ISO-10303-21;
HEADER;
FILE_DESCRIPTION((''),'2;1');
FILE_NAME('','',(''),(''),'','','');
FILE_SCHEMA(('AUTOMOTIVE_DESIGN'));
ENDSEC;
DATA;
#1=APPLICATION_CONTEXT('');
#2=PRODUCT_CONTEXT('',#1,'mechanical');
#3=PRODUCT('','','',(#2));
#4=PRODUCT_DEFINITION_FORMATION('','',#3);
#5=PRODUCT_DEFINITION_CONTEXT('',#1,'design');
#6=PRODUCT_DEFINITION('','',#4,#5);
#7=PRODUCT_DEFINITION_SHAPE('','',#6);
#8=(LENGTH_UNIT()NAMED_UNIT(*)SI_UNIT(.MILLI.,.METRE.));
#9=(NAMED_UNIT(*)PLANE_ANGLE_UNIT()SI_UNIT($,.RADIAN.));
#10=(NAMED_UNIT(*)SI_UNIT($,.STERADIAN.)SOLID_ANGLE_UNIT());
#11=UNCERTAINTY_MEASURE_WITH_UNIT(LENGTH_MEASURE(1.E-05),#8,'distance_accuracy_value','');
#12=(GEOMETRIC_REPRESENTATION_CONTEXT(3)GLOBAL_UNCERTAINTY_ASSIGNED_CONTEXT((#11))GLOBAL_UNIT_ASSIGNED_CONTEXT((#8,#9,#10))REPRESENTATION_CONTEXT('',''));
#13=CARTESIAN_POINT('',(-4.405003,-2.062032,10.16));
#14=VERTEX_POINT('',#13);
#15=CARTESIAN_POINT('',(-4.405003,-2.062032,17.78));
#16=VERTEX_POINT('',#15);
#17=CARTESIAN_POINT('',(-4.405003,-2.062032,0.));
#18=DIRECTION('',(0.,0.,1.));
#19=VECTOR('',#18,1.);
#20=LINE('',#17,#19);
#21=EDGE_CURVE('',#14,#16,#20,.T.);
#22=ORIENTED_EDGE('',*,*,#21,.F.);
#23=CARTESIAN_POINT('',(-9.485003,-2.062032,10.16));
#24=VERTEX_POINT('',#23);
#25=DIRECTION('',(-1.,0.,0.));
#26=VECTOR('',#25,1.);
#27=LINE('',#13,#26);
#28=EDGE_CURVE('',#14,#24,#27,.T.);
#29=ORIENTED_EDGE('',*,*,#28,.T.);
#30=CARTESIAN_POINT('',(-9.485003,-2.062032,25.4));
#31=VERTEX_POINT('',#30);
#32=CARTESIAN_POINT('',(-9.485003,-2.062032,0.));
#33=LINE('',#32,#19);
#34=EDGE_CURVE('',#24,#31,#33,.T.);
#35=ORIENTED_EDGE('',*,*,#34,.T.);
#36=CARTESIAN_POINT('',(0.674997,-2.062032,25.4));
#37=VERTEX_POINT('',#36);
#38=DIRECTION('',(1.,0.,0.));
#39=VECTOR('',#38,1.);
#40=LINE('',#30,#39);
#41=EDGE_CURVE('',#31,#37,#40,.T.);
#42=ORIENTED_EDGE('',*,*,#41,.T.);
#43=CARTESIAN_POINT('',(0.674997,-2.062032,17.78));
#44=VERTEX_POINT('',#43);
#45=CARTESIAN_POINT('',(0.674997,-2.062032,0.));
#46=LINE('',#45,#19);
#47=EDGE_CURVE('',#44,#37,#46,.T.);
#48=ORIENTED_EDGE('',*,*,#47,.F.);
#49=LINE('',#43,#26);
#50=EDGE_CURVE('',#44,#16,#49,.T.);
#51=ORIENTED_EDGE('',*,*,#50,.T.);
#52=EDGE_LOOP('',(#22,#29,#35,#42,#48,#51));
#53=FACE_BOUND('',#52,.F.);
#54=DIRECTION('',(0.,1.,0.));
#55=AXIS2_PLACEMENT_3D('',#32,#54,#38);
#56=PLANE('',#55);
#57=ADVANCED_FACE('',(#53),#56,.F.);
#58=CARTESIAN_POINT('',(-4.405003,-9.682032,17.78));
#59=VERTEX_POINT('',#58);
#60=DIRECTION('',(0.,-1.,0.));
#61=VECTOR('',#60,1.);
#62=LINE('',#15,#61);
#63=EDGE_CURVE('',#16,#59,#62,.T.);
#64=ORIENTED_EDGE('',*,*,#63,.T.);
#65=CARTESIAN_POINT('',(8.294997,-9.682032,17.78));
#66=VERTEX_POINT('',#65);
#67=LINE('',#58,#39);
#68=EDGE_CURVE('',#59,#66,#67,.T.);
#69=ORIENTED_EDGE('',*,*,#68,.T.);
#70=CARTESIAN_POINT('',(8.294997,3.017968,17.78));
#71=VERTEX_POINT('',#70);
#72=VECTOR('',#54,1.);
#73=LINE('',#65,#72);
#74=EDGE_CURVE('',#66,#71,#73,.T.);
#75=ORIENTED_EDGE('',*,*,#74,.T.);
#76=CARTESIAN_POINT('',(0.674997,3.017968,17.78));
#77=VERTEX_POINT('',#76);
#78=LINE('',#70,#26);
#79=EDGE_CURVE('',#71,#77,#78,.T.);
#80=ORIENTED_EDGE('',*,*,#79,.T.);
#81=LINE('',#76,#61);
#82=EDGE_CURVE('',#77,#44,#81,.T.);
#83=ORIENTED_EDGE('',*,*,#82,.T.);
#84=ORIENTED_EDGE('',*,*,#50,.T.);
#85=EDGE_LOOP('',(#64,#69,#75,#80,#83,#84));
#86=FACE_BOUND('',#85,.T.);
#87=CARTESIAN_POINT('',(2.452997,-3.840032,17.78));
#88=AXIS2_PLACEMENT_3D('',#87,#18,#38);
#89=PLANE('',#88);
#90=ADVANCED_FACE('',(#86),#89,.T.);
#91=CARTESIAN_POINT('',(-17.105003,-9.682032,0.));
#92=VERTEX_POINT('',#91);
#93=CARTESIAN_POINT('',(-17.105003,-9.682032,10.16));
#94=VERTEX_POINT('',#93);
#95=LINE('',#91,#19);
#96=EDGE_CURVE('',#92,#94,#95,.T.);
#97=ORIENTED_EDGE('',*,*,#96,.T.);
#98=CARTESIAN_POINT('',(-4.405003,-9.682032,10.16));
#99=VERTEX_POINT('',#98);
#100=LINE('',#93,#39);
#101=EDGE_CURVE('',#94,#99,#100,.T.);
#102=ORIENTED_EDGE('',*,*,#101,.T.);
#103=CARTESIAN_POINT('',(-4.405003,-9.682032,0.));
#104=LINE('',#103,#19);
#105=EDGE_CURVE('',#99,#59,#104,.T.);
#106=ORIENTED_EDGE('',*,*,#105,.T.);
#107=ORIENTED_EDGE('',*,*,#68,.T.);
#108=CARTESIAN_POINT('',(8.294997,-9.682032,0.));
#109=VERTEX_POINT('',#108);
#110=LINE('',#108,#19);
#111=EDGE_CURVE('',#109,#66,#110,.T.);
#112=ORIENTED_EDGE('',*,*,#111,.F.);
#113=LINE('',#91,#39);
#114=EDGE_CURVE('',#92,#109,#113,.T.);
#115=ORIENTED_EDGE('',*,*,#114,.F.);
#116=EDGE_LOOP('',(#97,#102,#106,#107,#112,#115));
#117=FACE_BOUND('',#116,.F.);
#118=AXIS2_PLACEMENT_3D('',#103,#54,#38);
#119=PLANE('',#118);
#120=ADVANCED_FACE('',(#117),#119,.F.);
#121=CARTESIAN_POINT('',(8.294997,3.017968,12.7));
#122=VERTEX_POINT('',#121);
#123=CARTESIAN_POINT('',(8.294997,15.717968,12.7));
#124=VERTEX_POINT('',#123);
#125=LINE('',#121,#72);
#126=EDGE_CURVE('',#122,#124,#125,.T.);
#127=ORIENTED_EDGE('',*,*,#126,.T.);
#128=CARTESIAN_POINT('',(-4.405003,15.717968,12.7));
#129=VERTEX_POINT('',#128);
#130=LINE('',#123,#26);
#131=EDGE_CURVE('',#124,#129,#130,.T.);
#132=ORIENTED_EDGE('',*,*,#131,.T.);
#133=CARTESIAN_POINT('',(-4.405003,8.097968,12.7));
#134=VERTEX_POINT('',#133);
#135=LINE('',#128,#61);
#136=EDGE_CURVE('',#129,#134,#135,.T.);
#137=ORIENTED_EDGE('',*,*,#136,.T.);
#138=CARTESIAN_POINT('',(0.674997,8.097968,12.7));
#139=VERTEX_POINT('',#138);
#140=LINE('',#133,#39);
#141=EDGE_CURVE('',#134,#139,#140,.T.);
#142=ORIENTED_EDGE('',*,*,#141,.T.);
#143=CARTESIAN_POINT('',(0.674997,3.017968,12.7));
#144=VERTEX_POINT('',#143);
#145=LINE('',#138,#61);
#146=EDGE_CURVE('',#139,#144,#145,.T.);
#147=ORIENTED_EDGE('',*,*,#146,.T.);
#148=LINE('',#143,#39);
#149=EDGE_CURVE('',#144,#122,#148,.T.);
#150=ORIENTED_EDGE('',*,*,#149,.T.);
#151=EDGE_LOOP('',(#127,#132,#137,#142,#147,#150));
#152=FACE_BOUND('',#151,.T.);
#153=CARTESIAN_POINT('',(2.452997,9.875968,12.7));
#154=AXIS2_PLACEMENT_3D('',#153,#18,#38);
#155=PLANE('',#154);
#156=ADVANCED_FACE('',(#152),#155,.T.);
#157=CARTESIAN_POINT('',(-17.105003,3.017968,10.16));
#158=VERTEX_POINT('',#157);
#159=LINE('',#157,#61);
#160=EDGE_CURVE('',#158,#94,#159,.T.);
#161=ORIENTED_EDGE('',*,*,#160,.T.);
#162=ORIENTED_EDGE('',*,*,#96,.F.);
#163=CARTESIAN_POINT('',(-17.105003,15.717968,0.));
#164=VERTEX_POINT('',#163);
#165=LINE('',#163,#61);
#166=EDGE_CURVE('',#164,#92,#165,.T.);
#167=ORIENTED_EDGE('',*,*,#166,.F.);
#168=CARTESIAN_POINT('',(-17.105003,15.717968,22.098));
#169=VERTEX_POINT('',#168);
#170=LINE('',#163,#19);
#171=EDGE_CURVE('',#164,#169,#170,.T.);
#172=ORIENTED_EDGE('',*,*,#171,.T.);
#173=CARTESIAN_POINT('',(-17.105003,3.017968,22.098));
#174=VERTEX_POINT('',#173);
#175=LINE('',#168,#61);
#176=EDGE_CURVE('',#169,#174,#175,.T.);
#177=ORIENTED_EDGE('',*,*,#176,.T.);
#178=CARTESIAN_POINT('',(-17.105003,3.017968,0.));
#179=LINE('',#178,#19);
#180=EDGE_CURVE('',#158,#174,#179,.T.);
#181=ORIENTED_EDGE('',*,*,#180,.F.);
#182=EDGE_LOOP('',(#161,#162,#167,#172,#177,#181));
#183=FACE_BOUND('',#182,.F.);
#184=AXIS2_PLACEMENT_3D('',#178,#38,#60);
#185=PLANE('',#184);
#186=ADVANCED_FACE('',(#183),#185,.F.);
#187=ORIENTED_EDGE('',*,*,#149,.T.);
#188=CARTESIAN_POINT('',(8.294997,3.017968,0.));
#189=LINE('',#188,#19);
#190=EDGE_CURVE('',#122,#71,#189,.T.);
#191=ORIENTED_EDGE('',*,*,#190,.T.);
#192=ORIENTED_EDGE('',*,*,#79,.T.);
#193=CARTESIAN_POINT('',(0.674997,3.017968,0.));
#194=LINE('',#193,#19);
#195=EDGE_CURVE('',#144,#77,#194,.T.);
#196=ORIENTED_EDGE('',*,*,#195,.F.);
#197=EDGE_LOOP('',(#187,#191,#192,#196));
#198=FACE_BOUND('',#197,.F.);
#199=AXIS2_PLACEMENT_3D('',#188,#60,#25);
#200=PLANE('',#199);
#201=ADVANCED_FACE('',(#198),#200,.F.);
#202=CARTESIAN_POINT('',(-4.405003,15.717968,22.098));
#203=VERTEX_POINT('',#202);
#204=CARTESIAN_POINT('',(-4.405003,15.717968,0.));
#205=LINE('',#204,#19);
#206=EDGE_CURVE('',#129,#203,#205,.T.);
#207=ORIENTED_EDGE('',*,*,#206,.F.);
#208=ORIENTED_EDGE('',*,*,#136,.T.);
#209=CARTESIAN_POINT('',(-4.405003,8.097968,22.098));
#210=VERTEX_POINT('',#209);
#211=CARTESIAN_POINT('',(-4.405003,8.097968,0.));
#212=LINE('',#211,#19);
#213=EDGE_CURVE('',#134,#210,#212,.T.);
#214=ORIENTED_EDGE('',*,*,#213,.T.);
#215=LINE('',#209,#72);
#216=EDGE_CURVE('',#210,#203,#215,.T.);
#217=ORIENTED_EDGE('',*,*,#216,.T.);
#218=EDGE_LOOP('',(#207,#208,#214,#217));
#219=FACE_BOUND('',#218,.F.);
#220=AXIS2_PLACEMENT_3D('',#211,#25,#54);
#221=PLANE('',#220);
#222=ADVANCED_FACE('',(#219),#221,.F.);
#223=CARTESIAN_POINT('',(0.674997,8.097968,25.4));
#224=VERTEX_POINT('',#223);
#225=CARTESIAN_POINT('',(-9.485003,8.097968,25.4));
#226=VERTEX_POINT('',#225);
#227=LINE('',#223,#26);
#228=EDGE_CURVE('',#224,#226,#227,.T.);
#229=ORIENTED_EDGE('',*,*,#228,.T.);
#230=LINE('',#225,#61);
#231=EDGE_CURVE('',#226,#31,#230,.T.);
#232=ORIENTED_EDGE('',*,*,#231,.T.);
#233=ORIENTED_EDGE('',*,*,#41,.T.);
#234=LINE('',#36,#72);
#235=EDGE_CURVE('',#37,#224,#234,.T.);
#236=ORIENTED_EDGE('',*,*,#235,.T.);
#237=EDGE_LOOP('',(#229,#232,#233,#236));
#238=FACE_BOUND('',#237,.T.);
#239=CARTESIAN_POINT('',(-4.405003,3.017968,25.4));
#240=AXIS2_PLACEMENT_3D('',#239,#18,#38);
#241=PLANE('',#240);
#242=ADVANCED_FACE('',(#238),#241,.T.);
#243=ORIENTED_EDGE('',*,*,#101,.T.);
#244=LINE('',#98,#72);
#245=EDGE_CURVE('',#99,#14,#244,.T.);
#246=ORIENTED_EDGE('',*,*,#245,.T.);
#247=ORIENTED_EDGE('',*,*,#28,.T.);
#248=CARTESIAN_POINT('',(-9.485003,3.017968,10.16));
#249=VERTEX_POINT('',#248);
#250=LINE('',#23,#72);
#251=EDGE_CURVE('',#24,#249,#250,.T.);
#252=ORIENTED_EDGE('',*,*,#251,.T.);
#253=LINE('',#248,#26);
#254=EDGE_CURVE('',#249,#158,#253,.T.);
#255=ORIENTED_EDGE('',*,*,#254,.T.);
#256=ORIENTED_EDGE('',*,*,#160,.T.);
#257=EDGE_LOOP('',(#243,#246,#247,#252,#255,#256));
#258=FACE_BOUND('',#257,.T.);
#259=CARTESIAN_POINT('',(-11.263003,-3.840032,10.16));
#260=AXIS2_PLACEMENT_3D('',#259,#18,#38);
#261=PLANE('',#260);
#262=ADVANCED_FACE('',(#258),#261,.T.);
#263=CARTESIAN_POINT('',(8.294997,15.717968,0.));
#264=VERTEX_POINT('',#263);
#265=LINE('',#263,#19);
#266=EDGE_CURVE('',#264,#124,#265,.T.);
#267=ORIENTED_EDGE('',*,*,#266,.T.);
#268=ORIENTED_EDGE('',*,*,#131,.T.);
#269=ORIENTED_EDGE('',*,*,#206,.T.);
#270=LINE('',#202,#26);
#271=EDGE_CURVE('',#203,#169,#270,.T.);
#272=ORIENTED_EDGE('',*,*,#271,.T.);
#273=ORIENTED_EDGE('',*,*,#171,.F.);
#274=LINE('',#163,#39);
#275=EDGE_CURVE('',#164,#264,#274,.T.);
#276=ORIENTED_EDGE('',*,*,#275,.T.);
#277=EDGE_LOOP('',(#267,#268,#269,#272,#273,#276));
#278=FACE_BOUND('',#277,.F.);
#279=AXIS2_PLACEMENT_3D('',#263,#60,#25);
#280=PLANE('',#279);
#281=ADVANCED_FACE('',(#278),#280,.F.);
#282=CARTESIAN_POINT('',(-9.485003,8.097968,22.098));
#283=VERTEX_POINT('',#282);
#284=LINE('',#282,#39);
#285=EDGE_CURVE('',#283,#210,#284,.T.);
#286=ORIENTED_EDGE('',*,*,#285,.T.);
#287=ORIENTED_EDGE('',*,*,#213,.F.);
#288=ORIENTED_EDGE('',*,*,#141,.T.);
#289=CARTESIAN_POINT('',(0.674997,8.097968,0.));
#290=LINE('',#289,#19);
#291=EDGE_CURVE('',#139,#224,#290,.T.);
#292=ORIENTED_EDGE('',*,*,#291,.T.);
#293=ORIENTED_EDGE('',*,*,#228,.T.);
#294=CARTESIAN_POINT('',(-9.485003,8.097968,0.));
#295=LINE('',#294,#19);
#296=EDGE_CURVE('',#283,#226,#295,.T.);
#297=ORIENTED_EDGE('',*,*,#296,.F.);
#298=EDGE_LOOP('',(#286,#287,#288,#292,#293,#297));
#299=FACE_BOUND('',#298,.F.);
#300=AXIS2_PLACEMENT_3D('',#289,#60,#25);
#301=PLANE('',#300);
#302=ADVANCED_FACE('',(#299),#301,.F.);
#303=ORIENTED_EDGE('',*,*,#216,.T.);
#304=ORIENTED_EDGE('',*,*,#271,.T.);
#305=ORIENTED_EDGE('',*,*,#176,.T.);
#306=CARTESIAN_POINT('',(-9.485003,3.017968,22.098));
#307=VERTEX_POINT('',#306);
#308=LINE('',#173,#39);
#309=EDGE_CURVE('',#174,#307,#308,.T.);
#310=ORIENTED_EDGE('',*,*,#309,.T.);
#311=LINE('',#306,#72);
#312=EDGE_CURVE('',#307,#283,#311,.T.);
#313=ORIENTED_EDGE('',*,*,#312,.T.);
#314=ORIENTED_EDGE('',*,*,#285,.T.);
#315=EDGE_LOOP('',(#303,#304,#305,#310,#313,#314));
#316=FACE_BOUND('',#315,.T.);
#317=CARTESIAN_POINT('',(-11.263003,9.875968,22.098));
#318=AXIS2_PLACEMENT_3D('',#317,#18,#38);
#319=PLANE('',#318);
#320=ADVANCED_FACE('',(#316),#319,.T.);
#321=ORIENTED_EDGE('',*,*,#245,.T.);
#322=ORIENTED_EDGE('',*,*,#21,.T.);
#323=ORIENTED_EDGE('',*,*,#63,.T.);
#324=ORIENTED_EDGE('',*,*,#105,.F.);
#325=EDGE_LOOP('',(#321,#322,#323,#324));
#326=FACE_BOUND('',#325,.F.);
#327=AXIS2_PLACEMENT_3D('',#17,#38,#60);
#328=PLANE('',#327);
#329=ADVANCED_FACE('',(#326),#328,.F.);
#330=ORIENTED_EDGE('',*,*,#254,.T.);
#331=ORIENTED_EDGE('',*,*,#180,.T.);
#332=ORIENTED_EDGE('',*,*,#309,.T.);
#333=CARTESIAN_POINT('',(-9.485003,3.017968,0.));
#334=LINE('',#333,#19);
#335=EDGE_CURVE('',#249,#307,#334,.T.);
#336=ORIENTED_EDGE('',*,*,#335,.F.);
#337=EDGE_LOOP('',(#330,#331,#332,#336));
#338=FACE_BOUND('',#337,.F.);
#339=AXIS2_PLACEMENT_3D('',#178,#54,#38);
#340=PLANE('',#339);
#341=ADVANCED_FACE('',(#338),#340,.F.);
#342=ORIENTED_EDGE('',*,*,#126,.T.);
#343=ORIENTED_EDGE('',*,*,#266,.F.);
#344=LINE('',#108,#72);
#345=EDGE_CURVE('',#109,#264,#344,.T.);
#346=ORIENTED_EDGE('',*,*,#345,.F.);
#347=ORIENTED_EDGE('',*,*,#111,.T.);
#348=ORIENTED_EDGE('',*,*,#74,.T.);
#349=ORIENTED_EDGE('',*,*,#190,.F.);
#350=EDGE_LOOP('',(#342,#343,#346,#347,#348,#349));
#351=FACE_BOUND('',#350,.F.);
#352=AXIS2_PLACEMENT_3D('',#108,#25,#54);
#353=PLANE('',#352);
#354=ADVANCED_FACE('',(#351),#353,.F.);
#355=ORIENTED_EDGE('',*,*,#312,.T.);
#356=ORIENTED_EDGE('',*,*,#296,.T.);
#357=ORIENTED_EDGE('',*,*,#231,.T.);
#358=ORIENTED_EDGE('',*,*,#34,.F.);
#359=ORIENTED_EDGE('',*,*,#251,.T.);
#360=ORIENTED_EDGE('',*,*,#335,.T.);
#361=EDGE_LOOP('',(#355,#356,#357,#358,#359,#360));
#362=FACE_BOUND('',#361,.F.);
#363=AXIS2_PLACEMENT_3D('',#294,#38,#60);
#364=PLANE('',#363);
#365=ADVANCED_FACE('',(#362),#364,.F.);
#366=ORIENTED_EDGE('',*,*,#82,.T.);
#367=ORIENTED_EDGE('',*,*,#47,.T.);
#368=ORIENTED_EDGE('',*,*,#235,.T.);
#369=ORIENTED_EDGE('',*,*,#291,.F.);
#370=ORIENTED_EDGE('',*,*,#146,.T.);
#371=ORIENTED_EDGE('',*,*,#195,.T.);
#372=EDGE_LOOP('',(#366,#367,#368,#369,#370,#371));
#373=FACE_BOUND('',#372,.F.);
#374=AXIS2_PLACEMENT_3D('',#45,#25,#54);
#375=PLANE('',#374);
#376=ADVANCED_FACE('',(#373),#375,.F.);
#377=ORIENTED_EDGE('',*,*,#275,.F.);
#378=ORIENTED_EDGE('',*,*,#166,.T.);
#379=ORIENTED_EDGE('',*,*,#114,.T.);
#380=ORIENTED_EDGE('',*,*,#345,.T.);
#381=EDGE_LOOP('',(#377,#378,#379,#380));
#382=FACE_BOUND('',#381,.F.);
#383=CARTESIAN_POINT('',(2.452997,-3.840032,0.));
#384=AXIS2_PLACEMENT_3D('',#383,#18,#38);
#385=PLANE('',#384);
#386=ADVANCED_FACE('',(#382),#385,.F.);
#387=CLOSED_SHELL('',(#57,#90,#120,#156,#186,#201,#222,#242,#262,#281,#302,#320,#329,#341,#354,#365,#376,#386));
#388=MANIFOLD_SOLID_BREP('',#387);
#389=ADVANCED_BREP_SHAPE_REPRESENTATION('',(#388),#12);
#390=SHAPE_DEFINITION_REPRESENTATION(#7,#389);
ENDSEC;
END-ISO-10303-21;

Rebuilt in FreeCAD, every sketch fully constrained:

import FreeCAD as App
import Part
import Sketcher

V = App.Vector
Q = App.Units.Quantity

doc = App.newDocument("Part")
body = doc.addObject("PartDesign::Body", "Body")

# Sketch on XY plane
sketch1 = doc.addObject("Sketcher::SketchObject", "Sketch")
body.addObject(sketch1)
sketch1.AttachmentSupport = (doc.XY_Plane, [""])
sketch1.MapMode = "FlatFace"
sketch1.addGeometry([
    Part.LineSegment(V(-4, 8, 0), V(-4, 16, 0)),  # 0
    Part.LineSegment(V(-4, 16, 0), V(-17, 16, 0)),  # 1
    Part.LineSegment(V(-17, 16, 0), V(-17, 3, 0)),  # 2
    Part.LineSegment(V(-17, 3, 0), V(-9, 3, 0)),  # 3
    Part.LineSegment(V(-9, 3, 0), V(-9, 8, 0)),  # 4
    Part.LineSegment(V(-9, 8, 0), V(-4, 8, 0)),  # 5
], False)
sketch1.addConstraint([
    Sketcher.Constraint("Coincident", 0, 2, 1, 1),
    Sketcher.Constraint("Coincident", 1, 2, 2, 1),
    Sketcher.Constraint("Coincident", 2, 2, 3, 1),
    Sketcher.Constraint("Coincident", 3, 2, 4, 1),
    Sketcher.Constraint("Coincident", 4, 2, 5, 1),
    Sketcher.Constraint("Coincident", 5, 2, 0, 1),
    Sketcher.Constraint("Vertical", 0),
    Sketcher.Constraint("Horizontal", 1),
    Sketcher.Constraint("Vertical", 2),
    Sketcher.Constraint("Horizontal", 3),
    Sketcher.Constraint("Vertical", 4),
    Sketcher.Constraint("Horizontal", 5),
    Sketcher.Constraint("Equal", 3, 0),
    Sketcher.Constraint("Equal", 1, 2),
    Sketcher.Constraint("DistanceX", 1, 2, 1, 1, Q("0.5 in")),
    Sketcher.Constraint("DistanceX", 3, 1, 3, 2, Q("0.3 in")),
    Sketcher.Constraint("DistanceY", -1, 1, 0, 2, 15.717968),
    Sketcher.Constraint("DistanceX", 0, 2, -1, 1, 4.405003),
])
pad1 = doc.addObject("PartDesign::Pad", "Pad")
body.addObject(pad1)
pad1.Profile = sketch1
pad1.Length = Q("0.87 in")

# Sketch on XY plane
sketch2 = doc.addObject("Sketcher::SketchObject", "Sketch001")
body.addObject(sketch2)
sketch2.AttachmentSupport = (doc.XY_Plane, [""])
sketch2.MapMode = "FlatFace"
sketch2.addGeometry([
    Part.LineSegment(V(1, 3, 0), V(8, 3, 0)),  # 0
    Part.LineSegment(V(8, 3, 0), V(8, 16, 0)),  # 1
    Part.LineSegment(V(8, 16, 0), V(-4, 16, 0)),  # 2
    Part.LineSegment(V(-4, 16, 0), V(-4, 8, 0)),  # 3
    Part.LineSegment(V(-4, 8, 0), V(1, 8, 0)),  # 4
    Part.LineSegment(V(1, 8, 0), V(1, 3, 0)),  # 5
], False)
sketch2.addConstraint([
    Sketcher.Constraint("Coincident", 0, 2, 1, 1),
    Sketcher.Constraint("Coincident", 1, 2, 2, 1),
    Sketcher.Constraint("Coincident", 2, 2, 3, 1),
    Sketcher.Constraint("Coincident", 3, 2, 4, 1),
    Sketcher.Constraint("Coincident", 4, 2, 5, 1),
    Sketcher.Constraint("Coincident", 5, 2, 0, 1),
    Sketcher.Constraint("Horizontal", 0),
    Sketcher.Constraint("Vertical", 1),
    Sketcher.Constraint("Horizontal", 2),
    Sketcher.Constraint("Vertical", 3),
    Sketcher.Constraint("Horizontal", 4),
    Sketcher.Constraint("Vertical", 5),
    Sketcher.Constraint("Equal", 2, 1),
    Sketcher.Constraint("Equal", 0, 3),
    Sketcher.Constraint("DistanceX", 0, 1, 0, 2, Q("0.3 in")),
    Sketcher.Constraint("DistanceX", 2, 2, 2, 1, Q("0.5 in")),
    Sketcher.Constraint("DistanceY", -1, 1, 0, 2, 3.017968),
    Sketcher.Constraint("DistanceX", -1, 1, 0, 2, 8.294997),
])
pad2 = doc.addObject("PartDesign::Pad", "Pad001")
body.addObject(pad2)
pad2.Profile = sketch2
pad2.Length = Q("0.5 in")

# Sketch on XY plane
sketch3 = doc.addObject("Sketcher::SketchObject", "Sketch002")
body.addObject(sketch3)
sketch3.AttachmentSupport = (doc.XY_Plane, [""])
sketch3.MapMode = "FlatFace"
sketch3.addGeometry([
    Part.LineSegment(V(-17, -10, 0), V(-4, -10, 0)),  # 0
    Part.LineSegment(V(-4, -10, 0), V(-4, -2, 0)),  # 1
    Part.LineSegment(V(-4, -2, 0), V(-9, -2, 0)),  # 2
    Part.LineSegment(V(-9, -2, 0), V(-9, 3, 0)),  # 3
    Part.LineSegment(V(-9, 3, 0), V(-17, 3, 0)),  # 4
    Part.LineSegment(V(-17, 3, 0), V(-17, -10, 0)),  # 5
], False)
sketch3.addConstraint([
    Sketcher.Constraint("Coincident", 0, 2, 1, 1),
    Sketcher.Constraint("Coincident", 1, 2, 2, 1),
    Sketcher.Constraint("Coincident", 2, 2, 3, 1),
    Sketcher.Constraint("Coincident", 3, 2, 4, 1),
    Sketcher.Constraint("Coincident", 4, 2, 5, 1),
    Sketcher.Constraint("Coincident", 5, 2, 0, 1),
    Sketcher.Constraint("Horizontal", 0),
    Sketcher.Constraint("Vertical", 1),
    Sketcher.Constraint("Horizontal", 2),
    Sketcher.Constraint("Vertical", 3),
    Sketcher.Constraint("Horizontal", 4),
    Sketcher.Constraint("Vertical", 5),
    Sketcher.Constraint("Equal", 4, 1),
    Sketcher.Constraint("Equal", 2, 3),
    Sketcher.Constraint("DistanceX", 0, 1, 0, 2, Q("0.5 in")),
    Sketcher.Constraint("DistanceX", 2, 2, 2, 1, Q("0.2 in")),
    Sketcher.Constraint("DistanceY", 1, 2, -1, 1, 2.062032),
    Sketcher.Constraint("DistanceX", 0, 2, -1, 1, 4.405003),
])
pad3 = doc.addObject("PartDesign::Pad", "Pad002")
body.addObject(pad3)
pad3.Profile = sketch3
pad3.Length = Q("0.4 in")

# Sketch on XY plane
sketch4 = doc.addObject("Sketcher::SketchObject", "Sketch003")
body.addObject(sketch4)
sketch4.AttachmentSupport = (doc.XY_Plane, [""])
sketch4.MapMode = "FlatFace"
sketch4.addGeometry([
    Part.LineSegment(V(-4, -10, 0), V(8, -10, 0)),  # 0
    Part.LineSegment(V(8, -10, 0), V(8, 3, 0)),  # 1
    Part.LineSegment(V(8, 3, 0), V(1, 3, 0)),  # 2
    Part.LineSegment(V(1, 3, 0), V(1, -2, 0)),  # 3
    Part.LineSegment(V(1, -2, 0), V(-4, -2, 0)),  # 4
    Part.LineSegment(V(-4, -2, 0), V(-4, -10, 0)),  # 5
], False)
sketch4.addConstraint([
    Sketcher.Constraint("Coincident", 0, 2, 1, 1),
    Sketcher.Constraint("Coincident", 1, 2, 2, 1),
    Sketcher.Constraint("Coincident", 2, 2, 3, 1),
    Sketcher.Constraint("Coincident", 3, 2, 4, 1),
    Sketcher.Constraint("Coincident", 4, 2, 5, 1),
    Sketcher.Constraint("Coincident", 5, 2, 0, 1),
    Sketcher.Constraint("Horizontal", 0),
    Sketcher.Constraint("Vertical", 1),
    Sketcher.Constraint("Horizontal", 2),
    Sketcher.Constraint("Vertical", 3),
    Sketcher.Constraint("Horizontal", 4),
    Sketcher.Constraint("Vertical", 5),
    Sketcher.Constraint("Equal", 0, 1),
    Sketcher.Constraint("Equal", 4, 3),
    Sketcher.Constraint("DistanceX", 0, 1, 0, 2, Q("0.5 in")),
    Sketcher.Constraint("DistanceX", 2, 2, 2, 1, Q("0.3 in")),
    Sketcher.Constraint("DistanceY", -1, 1, 1, 2, 3.017968),
    Sketcher.Constraint("DistanceX", -1, 1, 0, 2, 8.294997),
])
pad4 = doc.addObject("PartDesign::Pad", "Pad003")
body.addObject(pad4)
pad4.Profile = sketch4
pad4.Length = Q("0.7 in")

# Sketch on XY plane
sketch5 = doc.addObject("Sketcher::SketchObject", "Sketch004")
body.addObject(sketch5)
sketch5.AttachmentSupport = (doc.XY_Plane, [""])
sketch5.MapMode = "FlatFace"
sketch5.addGeometry([
    Part.LineSegment(V(-9, -2, 0), V(1, -2, 0)),
    Part.LineSegment(V(1, -2, 0), V(1, 8, 0)),
    Part.LineSegment(V(1, 8, 0), V(-9, 8, 0)),
    Part.LineSegment(V(-9, 8, 0), V(-9, -2, 0)),
], False)
sketch5.addConstraint([
    Sketcher.Constraint("Coincident", 0, 2, 1, 1),
    Sketcher.Constraint("Coincident", 1, 2, 2, 1),
    Sketcher.Constraint("Coincident", 2, 2, 3, 1),
    Sketcher.Constraint("Coincident", 3, 2, 0, 1),
    Sketcher.Constraint("Horizontal", 0),
    Sketcher.Constraint("Vertical", 1),
    Sketcher.Constraint("Horizontal", 2),
    Sketcher.Constraint("Vertical", 3),
    Sketcher.Constraint("Equal", 2, 1),
    Sketcher.Constraint("DistanceX", 0, 1, 0, 2, Q("0.4 in")),
    Sketcher.Constraint("DistanceY", 0, 2, -1, 1, 2.062032),
    Sketcher.Constraint("DistanceX", -1, 1, 0, 2, 0.674997),
])
pad5 = doc.addObject("PartDesign::Pad", "Pad004")
body.addObject(pad5)
pad5.Profile = sketch5
pad5.Length = Q("1 in")

doc.recompute()
